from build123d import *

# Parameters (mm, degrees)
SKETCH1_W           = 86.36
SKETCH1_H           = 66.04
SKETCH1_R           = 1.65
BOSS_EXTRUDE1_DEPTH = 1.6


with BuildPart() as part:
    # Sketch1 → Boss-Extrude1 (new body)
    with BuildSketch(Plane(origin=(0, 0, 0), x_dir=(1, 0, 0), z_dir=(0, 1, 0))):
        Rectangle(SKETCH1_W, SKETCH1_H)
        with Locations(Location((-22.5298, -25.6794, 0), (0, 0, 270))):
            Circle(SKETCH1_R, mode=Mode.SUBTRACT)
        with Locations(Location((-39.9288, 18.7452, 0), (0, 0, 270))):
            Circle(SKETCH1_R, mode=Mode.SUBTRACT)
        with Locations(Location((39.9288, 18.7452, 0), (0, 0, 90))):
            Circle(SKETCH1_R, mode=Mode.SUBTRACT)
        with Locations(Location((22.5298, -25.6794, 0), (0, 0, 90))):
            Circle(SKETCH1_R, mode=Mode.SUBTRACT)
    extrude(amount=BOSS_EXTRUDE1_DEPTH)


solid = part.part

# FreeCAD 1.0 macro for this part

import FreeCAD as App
import Part
import Sketcher

V = App.Vector

doc = App.newDocument("Part")
params = doc.addObject("Spreadsheet::Sheet", "Params")
for row, (alias, value) in enumerate([
    ("sketch1_diameter", "3.3 mm"),
    ("sketch1_width", "86.36 mm"),
    ("sketch1_height", "66.04 mm"),
    ("pad1_length", "1.6 mm"),
], start=1):
    params.set(f"A{row}", alias)
    params.set(f"B{row}", "=" + value)
    params.setAlias(f"B{row}", alias)

body = doc.addObject("PartDesign::Body", "Body")

# Sketch on XZ plane
sketch1 = body.newObject("Sketcher::SketchObject", "Sketch")
sketch1.AttachmentSupport = (doc.getObject("XZ_Plane"), [""])
sketch1.MapMode = "FlatFace"
sketch1.addGeometry([
    Part.LineSegment(V(-43.2, -33, 0), V(-43.2, 33, 0)),  # 0
    Part.LineSegment(V(-43.2, 33, 0), V(43.2, 33, 0)),  # 1
    Part.LineSegment(V(43.2, 33, 0), V(43.2, -33, 0)),  # 2
    Part.LineSegment(V(43.2, -33, 0), V(-43.2, -33, 0)),  # 3
    Part.Circle(V(-22.5, 25.7, 0), V(0, 0, 1), 1.6),  # 4
    Part.Circle(V(22.5, 25.7, 0), V(0, 0, 1), 1.6),  # 5
    Part.Circle(V(-39.9, -18.7, 0), V(0, 0, 1), 1.6),  # 6
    Part.Circle(V(39.9, -18.7, 0), V(0, 0, 1), 1.6),  # 7
], False)
sketch1.addConstraint([
    Sketcher.Constraint("Coincident", 0, 2, 1, 1),
    Sketcher.Constraint("Coincident", 1, 2, 2, 1),
    Sketcher.Constraint("Coincident", 2, 2, 3, 1),
    Sketcher.Constraint("Coincident", 3, 2, 0, 1),
    Sketcher.Constraint("Vertical", 0),
    Sketcher.Constraint("Horizontal", 1),
    Sketcher.Constraint("Vertical", 2),
    Sketcher.Constraint("Horizontal", 3),
    Sketcher.Constraint("Equal", 4, 5),
    Sketcher.Constraint("Equal", 5, 6),
    Sketcher.Constraint("Equal", 6, 7),
    Sketcher.Constraint("Symmetric", 0, 2, 2, 2, -1, 1),
    Sketcher.Constraint("Symmetric", 4, 3, 5, 3, -2),
    Sketcher.Constraint("Symmetric", 6, 3, 7, 3, -2),
    Sketcher.Constraint("Diameter", 4, 3.3),
    Sketcher.Constraint("DistanceX", 1, 1, 1, 2, 86.36),
    Sketcher.Constraint("DistanceY", 0, 1, 0, 2, 66.04),
    Sketcher.Constraint("DistanceX", 6, 3, 4, 3, 17.399),
    Sketcher.Constraint("DistanceX", 4, 3, -1, 1, 22.5298),
    Sketcher.Constraint("DistanceY", -1, 1, 4, 3, 25.6794),
    Sketcher.Constraint("DistanceY", 6, 3, -1, 1, 18.7452),
])
sketch1.setExpression("Constraints[14]", "Params.sketch1_diameter")
sketch1.setExpression("Constraints[15]", "Params.sketch1_width")
sketch1.setExpression("Constraints[16]", "Params.sketch1_height")
pad1 = body.newObject("PartDesign::Pad", "Pad")
pad1.Profile = sketch1
pad1.setExpression("Length", "Params.pad1_length")
pad1.Reversed = True

doc.recompute()
